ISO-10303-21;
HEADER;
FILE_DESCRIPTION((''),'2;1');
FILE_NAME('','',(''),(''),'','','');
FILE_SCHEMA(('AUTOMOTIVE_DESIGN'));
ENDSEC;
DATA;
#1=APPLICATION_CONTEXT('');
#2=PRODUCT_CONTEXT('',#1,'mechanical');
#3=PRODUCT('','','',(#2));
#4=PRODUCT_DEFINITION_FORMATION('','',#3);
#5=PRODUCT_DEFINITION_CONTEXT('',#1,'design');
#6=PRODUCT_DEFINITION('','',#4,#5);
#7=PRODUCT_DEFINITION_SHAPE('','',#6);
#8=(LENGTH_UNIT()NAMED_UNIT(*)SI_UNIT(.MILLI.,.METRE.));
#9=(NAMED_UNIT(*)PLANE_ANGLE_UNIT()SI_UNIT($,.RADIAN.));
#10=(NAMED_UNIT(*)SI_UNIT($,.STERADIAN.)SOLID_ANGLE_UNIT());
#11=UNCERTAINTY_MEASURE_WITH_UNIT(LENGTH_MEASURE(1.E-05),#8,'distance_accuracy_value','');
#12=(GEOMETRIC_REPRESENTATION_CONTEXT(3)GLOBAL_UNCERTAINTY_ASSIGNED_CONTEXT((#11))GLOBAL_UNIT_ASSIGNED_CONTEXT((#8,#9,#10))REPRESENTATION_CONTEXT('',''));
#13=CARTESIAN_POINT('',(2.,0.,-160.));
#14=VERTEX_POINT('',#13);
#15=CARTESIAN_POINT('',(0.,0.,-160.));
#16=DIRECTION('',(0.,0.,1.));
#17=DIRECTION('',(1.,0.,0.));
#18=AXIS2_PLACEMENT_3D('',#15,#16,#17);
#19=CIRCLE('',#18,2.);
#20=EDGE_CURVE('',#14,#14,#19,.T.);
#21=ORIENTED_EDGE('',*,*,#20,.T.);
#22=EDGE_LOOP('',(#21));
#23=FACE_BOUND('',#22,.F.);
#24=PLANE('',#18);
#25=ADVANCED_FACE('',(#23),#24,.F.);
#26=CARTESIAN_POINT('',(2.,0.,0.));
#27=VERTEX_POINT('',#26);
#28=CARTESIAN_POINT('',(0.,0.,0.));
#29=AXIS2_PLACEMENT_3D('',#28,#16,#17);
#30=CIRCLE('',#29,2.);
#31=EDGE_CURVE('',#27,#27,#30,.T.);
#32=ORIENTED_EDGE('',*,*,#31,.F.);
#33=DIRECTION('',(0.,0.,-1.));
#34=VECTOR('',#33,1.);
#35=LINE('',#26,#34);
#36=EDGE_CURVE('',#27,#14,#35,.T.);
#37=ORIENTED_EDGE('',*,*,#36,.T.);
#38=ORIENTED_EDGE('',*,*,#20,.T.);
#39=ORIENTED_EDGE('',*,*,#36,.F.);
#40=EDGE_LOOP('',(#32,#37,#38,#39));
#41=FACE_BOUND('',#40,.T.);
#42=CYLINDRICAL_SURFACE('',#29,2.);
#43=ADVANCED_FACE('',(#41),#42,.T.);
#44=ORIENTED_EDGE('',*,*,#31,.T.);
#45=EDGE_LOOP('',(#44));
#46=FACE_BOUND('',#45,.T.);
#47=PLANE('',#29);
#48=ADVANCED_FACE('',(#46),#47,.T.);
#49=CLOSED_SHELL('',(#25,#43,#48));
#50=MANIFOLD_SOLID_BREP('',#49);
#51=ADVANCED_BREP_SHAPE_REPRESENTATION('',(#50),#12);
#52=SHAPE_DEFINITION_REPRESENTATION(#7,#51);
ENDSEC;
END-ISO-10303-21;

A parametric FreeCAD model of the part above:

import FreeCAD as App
import Part
import Sketcher
from FreeCAD import Vector
Q = App.Units.Quantity

doc = App.newDocument("Part")
body = doc.addObject("PartDesign::Body", "Body")

# Sketch on XY plane
sketch1 = doc.addObject("Sketcher::SketchObject", "Sketch")
body.addObject(sketch1)
sketch1.AttachmentSupport = (doc.XY_Plane, [""])
sketch1.MapMode = "FlatFace"
sketch1.addGeometry(Part.Circle(Vector(0, 0, 0), Vector(0, 0, 1), 2), False)
sketch1.addConstraint(Sketcher.Constraint("Coincident", 0, 3, -1, 1))
sketch1.addConstraint(Sketcher.Constraint("Diameter", 0, Q("4 mm")))
pad1 = doc.addObject("PartDesign::Pad", "Pad")
body.addObject(pad1)
pad1.Profile = sketch1
pad1.Length = 160
pad1.Reversed = True

doc.recompute()
